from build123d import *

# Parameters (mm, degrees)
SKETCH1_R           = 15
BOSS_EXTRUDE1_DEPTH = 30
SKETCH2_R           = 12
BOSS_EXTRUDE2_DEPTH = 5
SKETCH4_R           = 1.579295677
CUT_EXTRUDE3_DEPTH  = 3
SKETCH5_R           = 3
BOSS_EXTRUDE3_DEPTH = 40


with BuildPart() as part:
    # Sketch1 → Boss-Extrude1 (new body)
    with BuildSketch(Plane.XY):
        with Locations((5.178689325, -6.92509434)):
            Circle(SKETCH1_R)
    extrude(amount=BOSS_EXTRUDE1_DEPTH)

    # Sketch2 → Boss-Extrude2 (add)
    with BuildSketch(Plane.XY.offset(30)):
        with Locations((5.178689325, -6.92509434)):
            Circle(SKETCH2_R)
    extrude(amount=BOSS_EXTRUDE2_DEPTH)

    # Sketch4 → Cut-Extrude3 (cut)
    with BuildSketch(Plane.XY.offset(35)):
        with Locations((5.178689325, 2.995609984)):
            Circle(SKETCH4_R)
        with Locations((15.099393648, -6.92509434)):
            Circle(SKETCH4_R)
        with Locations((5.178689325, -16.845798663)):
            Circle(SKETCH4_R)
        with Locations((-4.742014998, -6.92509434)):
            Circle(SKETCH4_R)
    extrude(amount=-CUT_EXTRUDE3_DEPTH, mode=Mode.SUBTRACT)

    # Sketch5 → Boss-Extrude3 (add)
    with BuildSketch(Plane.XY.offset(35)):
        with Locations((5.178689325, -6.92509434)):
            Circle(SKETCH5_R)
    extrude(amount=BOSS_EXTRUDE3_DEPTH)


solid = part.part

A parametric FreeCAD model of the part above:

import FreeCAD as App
import Part
import Sketcher
Q = App.Units.Quantity

doc = App.newDocument("Part")
body = doc.addObject("PartDesign::Body", "Body")

# Sketch on XY plane
sketch1 = body.newObject("Sketcher::SketchObject", "Sketch")
sketch1.AttachmentSupport = (doc.getObject("XY_Plane"), [""])
sketch1.MapMode = "FlatFace"
sketch1.addGeometry(Part.Circle(App.Vector(5, -7, 0), App.Vector(0, 0, 1), 15), False)
sketch1.addConstraint([
    Sketcher.Constraint("Diameter", 0, Q("30 mm")),
    Sketcher.Constraint("DistanceX", -1, 1, 0, 3, Q("5.178689 mm")),
    Sketcher.Constraint("DistanceY", 0, 3, -1, 1, Q("6.925094 mm")),
])
pad1 = body.newObject("PartDesign::Pad", "Pad")
pad1.Profile = sketch1
pad1.Length = 30

# Sketch on XY plane
sketch2 = body.newObject("Sketcher::SketchObject", "Sketch001")
sketch2.AttachmentSupport = (doc.getObject("XY_Plane"), [""])
sketch2.MapMode = "FlatFace"
sketch2.AttachmentOffset = App.Placement(App.Vector(0, 0, 30), App.Rotation())
sketch2.addGeometry(Part.Circle(App.Vector(5, -7, 0), App.Vector(0, 0, 1), 12), False)
sketch2.addConstraint([
    Sketcher.Constraint("Diameter", 0, Q("24 mm")),
    Sketcher.Constraint("DistanceX", -1, 1, 0, 3, Q("5.178689 mm")),
    Sketcher.Constraint("DistanceY", 0, 3, -1, 1, Q("6.925094 mm")),
])
pad2 = body.newObject("PartDesign::Pad", "Pad001")
pad2.Profile = sketch2
pad2.Length = 5

# Sketch on XY plane
sketch3 = body.newObject("Sketcher::SketchObject", "Sketch002")
sketch3.AttachmentSupport = (doc.getObject("XY_Plane"), [""])
sketch3.MapMode = "FlatFace"
sketch3.AttachmentOffset = App.Placement(App.Vector(0, 0, 35), App.Rotation())
sketch3.addGeometry([
    Part.Circle(App.Vector(5.2, 3, 0), App.Vector(0, 0, 1), 1.6),
    Part.Circle(App.Vector(15.1, -6.9, 0), App.Vector(0, 0, 1), 1.6),
    Part.Circle(App.Vector(5.2, -16.8, 0), App.Vector(0, 0, 1), 1.6),
    Part.Circle(App.Vector(-4.7, -6.9, 0), App.Vector(0, 0, 1), 1.6),
], False)
sketch3.addConstraint([
    Sketcher.Constraint("Equal", 0, 1),
    Sketcher.Constraint("Equal", 1, 2),
    Sketcher.Constraint("Equal", 2, 3),
    Sketcher.Constraint("Horizontal", 1, 3, 3, 3),
    Sketcher.Constraint("Vertical", 0, 3, 2, 3),
    Sketcher.Constraint("Diameter", 0, Q("3.158591 mm")),
    Sketcher.Constraint("DistanceY", 2, 3, -1, 1, Q("16.845799 mm")),
    Sketcher.Constraint("DistanceX", -1, 1, 0, 3, Q("5.178689 mm")),
    Sketcher.Constraint("DistanceY", -1, 1, 0, 3, Q("2.99561 mm")),
    Sketcher.Constraint("DistanceX", 3, 3, 1, 3, Q("19.841409 mm")),
    Sketcher.Constraint("DistanceX", -1, 1, 1, 3, Q("15.099394 mm")),
    Sketcher.Constraint("DistanceY", 1, 3, -1, 1, Q("6.925094 mm")),
])
pocket1 = body.newObject("PartDesign::Pocket", "Pocket")
pocket1.Profile = sketch3
pocket1.Length = 3

# Sketch on XY plane
sketch4 = body.newObject("Sketcher::SketchObject", "Sketch003")
sketch4.AttachmentSupport = (doc.getObject("XY_Plane"), [""])
sketch4.MapMode = "FlatFace"
sketch4.AttachmentOffset = App.Placement(App.Vector(0, 0, 35), App.Rotation())
sketch4.addGeometry(Part.Circle(App.Vector(5.2, -6.9, 0), App.Vector(0, 0, 1), 3), False)
sketch4.addConstraint([
    Sketcher.Constraint("Diameter", 0, Q("6 mm")),
    Sketcher.Constraint("DistanceX", -1, 1, 0, 3, Q("5.178689 mm")),
    Sketcher.Constraint("DistanceY", 0, 3, -1, 1, Q("6.925094 mm")),
])
pad3 = body.newObject("PartDesign::Pad", "Pad002")
pad3.Profile = sketch4
pad3.Length = 40

doc.recompute()
